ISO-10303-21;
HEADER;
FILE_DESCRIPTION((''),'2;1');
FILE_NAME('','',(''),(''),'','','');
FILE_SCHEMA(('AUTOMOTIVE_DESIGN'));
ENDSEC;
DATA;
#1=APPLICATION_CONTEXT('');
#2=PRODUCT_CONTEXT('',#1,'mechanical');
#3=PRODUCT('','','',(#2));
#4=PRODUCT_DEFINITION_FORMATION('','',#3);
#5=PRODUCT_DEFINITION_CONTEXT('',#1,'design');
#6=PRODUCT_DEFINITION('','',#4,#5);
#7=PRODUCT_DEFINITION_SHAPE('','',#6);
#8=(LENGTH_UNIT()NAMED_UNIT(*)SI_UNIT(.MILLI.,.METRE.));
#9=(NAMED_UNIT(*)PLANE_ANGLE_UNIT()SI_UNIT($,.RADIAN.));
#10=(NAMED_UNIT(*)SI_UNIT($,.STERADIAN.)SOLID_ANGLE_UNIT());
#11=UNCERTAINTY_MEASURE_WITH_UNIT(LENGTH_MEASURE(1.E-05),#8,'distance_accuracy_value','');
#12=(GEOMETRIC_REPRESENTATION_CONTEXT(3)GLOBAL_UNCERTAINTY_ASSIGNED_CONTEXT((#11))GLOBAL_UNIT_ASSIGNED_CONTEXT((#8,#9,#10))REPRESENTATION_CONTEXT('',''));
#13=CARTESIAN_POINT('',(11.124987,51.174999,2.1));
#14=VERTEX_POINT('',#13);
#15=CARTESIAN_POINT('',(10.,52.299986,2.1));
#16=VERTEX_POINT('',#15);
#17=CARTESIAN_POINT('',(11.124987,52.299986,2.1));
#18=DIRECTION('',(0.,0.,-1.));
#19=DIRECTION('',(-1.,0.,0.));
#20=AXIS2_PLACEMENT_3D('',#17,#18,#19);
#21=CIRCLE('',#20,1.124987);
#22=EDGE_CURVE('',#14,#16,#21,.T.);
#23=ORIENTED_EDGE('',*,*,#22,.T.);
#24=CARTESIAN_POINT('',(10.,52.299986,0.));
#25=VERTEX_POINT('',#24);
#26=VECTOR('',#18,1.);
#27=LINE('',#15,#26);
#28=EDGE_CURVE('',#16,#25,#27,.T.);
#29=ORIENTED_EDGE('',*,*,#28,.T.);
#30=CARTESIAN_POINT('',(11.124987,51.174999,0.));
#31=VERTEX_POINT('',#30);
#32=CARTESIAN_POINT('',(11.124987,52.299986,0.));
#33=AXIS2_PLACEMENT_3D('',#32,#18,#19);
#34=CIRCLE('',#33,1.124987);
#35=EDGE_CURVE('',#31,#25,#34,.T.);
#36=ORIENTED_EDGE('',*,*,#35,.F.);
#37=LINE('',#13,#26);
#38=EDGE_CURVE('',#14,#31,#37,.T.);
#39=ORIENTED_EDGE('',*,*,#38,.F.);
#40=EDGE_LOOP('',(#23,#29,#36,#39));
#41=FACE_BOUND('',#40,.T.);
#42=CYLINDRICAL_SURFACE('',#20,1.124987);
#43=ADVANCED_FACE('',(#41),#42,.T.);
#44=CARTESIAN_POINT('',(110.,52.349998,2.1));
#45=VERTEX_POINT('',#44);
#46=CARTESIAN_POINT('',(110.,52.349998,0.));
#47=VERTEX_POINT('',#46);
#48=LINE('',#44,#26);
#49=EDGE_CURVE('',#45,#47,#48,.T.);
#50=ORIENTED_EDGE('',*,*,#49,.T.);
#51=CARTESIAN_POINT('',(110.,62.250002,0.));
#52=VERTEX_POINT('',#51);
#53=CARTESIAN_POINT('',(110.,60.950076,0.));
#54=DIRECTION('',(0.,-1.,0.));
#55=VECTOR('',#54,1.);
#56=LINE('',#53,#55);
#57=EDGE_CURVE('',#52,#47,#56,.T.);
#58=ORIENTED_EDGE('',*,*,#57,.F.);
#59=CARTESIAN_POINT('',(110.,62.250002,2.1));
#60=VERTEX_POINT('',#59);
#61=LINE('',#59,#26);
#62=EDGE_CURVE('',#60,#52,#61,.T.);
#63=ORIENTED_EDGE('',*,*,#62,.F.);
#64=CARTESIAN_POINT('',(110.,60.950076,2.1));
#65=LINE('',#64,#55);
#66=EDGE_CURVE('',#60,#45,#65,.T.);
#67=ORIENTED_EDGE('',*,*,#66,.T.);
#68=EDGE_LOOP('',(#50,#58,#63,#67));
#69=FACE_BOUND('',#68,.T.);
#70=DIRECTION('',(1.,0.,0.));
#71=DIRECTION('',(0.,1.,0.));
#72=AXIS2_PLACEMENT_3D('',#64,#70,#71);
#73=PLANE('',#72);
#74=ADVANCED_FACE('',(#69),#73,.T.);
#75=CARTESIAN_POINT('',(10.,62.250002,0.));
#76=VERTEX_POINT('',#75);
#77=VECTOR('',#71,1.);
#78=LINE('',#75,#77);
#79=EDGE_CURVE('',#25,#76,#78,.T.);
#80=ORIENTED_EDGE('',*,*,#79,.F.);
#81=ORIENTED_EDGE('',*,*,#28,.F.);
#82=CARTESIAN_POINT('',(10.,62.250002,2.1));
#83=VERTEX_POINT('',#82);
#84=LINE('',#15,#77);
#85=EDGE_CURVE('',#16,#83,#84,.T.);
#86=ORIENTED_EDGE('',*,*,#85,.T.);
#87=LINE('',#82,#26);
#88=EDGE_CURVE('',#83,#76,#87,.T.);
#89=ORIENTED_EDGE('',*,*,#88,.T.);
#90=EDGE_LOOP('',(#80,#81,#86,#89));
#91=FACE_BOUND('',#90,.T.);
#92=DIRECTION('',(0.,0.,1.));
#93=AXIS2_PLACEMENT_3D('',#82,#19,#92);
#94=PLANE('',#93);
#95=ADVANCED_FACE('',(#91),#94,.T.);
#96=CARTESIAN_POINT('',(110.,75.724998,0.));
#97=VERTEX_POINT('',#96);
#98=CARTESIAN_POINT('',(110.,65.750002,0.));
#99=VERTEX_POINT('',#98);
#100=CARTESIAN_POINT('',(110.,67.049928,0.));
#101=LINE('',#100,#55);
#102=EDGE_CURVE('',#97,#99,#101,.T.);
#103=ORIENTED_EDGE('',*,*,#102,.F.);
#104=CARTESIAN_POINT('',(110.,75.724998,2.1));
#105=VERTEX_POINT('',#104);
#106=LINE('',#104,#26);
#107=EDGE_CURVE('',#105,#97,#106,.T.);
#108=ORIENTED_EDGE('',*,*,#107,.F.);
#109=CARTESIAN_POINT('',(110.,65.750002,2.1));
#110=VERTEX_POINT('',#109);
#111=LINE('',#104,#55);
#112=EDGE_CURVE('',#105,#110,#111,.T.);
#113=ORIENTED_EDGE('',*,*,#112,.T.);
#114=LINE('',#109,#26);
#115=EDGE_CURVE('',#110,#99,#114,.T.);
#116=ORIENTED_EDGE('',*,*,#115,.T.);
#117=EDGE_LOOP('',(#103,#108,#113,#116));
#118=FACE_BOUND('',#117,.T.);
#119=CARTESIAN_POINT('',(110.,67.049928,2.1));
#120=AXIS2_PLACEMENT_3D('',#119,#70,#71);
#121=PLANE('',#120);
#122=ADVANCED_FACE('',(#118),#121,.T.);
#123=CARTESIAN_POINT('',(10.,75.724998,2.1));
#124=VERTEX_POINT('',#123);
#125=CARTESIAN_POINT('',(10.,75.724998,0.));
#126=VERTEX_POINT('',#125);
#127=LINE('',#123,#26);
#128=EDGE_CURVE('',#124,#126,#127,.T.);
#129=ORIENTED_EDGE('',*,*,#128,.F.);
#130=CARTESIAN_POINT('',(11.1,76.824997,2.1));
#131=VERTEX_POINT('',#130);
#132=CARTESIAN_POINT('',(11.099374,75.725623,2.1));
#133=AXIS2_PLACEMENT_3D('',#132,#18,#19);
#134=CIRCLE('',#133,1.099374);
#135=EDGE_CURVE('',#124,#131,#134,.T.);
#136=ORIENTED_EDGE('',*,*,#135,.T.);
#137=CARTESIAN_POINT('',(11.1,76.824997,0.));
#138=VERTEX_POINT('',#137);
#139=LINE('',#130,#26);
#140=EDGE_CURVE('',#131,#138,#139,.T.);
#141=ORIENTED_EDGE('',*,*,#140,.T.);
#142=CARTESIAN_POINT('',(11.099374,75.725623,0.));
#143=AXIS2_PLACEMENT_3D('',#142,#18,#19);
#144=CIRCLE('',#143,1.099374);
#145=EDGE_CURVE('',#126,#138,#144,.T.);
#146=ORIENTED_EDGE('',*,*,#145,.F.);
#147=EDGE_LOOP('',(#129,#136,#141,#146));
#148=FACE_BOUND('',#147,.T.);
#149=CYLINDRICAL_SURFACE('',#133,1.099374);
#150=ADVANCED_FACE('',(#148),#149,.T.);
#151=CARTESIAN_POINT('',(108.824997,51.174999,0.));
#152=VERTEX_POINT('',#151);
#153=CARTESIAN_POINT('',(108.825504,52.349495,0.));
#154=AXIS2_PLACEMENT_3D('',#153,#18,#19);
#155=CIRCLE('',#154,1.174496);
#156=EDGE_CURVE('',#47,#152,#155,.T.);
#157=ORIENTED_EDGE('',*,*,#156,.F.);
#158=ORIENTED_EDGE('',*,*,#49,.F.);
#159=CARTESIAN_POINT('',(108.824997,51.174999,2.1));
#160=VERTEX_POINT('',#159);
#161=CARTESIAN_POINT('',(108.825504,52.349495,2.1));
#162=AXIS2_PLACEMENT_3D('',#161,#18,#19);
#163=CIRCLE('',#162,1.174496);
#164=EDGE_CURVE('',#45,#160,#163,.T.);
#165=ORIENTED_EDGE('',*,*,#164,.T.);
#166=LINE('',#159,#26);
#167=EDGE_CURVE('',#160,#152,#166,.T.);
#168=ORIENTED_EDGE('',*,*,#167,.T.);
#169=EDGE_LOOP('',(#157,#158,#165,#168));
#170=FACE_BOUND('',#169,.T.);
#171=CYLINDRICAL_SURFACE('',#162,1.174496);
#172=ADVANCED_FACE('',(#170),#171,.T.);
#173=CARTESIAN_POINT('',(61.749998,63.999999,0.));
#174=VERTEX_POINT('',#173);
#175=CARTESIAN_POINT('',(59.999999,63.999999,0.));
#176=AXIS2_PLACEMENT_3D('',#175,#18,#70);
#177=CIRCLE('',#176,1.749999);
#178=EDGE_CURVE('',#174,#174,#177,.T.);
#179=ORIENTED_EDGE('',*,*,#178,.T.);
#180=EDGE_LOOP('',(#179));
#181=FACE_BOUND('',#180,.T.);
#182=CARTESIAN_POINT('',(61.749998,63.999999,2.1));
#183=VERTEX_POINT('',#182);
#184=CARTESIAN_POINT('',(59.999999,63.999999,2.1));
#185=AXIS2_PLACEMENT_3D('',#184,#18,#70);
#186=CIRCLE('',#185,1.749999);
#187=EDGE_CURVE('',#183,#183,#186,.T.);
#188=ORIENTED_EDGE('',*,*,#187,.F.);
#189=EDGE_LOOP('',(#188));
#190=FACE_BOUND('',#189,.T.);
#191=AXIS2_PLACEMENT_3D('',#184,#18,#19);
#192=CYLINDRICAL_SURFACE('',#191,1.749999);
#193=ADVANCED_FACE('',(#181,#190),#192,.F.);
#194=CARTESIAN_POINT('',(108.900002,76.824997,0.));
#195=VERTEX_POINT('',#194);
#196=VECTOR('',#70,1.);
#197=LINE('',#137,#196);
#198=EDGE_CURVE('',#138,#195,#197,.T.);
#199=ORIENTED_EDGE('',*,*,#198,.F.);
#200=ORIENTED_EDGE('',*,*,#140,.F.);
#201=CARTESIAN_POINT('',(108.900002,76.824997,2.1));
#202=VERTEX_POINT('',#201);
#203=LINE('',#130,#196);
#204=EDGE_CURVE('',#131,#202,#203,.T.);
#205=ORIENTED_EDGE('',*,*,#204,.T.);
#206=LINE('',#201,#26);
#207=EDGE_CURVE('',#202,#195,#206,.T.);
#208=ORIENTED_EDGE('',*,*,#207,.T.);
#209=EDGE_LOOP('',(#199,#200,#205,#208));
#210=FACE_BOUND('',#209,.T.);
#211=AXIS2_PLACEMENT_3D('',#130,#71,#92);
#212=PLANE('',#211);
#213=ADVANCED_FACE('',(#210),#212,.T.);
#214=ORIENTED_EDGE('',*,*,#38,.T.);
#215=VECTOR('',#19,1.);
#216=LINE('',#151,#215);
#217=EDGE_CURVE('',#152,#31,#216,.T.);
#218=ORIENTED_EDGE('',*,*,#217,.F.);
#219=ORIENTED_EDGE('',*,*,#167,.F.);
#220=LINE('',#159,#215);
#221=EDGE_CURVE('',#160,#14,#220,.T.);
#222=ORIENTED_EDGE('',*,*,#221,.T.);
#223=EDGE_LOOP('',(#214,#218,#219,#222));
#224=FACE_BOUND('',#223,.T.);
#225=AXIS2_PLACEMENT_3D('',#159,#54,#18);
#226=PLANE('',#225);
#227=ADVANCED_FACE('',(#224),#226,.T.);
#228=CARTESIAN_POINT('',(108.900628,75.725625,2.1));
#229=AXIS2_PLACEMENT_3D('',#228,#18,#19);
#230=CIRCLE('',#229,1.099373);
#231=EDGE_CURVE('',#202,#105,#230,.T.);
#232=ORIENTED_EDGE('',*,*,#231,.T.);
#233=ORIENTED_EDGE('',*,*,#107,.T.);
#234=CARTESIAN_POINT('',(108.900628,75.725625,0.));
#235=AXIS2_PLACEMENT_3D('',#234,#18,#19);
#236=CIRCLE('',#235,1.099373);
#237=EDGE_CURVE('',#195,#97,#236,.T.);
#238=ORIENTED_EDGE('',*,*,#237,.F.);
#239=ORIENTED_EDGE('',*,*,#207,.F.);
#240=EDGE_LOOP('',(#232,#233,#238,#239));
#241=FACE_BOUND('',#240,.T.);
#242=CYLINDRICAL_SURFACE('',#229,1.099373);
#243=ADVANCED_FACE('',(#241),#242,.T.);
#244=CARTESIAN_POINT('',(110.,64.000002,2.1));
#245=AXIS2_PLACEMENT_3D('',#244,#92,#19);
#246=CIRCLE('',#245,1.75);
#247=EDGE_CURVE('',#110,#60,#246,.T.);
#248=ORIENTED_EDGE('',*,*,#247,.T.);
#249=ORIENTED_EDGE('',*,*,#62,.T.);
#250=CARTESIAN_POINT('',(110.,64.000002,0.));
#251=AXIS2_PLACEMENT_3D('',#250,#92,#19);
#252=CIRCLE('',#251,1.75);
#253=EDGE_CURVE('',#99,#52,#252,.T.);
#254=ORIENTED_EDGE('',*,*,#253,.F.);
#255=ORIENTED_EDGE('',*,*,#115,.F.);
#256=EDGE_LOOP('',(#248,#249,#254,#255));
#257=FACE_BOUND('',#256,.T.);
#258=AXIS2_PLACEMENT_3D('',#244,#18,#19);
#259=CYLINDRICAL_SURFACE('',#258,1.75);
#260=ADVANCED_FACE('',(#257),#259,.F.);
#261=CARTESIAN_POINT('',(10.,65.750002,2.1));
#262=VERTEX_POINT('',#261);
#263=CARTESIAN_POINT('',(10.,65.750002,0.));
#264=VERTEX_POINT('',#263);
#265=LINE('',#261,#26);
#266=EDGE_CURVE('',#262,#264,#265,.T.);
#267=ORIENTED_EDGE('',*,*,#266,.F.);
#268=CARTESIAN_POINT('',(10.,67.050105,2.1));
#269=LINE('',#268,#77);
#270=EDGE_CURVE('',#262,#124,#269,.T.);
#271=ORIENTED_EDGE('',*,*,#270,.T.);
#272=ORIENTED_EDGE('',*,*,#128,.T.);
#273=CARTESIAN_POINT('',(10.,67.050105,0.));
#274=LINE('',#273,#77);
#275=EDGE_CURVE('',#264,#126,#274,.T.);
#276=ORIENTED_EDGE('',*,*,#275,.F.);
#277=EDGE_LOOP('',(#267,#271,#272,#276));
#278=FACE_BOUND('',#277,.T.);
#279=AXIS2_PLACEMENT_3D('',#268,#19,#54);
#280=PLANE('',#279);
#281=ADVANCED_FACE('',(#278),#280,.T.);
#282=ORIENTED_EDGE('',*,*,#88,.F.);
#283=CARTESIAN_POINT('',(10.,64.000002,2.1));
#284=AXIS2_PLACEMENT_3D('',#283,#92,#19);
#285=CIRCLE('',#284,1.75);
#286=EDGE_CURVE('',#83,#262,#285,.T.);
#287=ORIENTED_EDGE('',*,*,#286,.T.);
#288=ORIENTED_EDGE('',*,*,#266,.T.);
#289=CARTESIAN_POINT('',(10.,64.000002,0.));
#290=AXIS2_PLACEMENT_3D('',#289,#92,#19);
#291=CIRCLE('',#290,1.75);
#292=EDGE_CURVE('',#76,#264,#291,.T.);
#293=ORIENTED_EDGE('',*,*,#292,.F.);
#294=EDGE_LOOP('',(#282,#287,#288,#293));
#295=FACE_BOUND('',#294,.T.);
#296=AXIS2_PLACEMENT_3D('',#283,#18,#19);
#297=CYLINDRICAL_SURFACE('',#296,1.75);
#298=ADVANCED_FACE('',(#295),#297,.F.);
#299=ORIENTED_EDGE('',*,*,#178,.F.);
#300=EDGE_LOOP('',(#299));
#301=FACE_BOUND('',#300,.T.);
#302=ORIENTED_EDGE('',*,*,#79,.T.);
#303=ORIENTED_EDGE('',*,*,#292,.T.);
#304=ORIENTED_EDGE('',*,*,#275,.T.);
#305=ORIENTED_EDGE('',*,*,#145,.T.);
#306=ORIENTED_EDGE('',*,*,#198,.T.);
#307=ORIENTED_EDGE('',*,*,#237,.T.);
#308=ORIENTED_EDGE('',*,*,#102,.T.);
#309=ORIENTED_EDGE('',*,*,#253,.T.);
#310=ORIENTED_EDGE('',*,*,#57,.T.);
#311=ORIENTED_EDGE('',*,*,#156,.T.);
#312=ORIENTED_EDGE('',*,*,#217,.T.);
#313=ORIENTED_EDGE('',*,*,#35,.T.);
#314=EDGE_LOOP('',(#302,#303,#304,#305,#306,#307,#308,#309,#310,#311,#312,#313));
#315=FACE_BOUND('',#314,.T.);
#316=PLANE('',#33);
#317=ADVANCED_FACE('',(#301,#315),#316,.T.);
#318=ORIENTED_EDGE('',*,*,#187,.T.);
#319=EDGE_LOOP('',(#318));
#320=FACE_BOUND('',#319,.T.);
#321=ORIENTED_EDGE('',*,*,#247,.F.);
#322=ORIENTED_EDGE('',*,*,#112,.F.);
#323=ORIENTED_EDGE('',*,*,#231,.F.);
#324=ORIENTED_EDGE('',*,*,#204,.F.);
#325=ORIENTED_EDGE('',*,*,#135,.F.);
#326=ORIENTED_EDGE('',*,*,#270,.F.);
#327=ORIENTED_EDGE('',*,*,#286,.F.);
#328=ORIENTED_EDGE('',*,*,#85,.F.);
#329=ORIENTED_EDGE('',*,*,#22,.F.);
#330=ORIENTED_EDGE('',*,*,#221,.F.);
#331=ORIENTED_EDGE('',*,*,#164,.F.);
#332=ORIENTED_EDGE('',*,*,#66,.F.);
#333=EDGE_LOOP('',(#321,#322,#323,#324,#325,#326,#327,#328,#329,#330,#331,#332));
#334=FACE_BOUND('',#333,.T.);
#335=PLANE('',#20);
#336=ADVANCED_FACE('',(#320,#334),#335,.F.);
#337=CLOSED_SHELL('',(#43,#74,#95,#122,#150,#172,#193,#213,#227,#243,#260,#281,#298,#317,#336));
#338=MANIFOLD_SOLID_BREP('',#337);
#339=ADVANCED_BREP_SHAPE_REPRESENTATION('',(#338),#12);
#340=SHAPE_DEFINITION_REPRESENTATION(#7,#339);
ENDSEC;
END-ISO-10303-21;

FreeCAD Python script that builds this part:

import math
import FreeCAD as App
import Part
import Sketcher

doc = App.newDocument("Part")
body = doc.addObject("PartDesign::Body", "Body")

sketch1 = body.newObject("Sketcher::SketchObject", "Sketch")
sketch1.AttachmentSupport = (doc.getObject("XY_Plane"), [""])
sketch1.MapMode = "FlatFace"
sketch1.addGeometry(Part.LineSegment(App.Vector(10, 52.3, 0), App.Vector(10, 62.3, 0)), False)
sketch1.addGeometry(Part.ArcOfCircle(Part.Circle(App.Vector(10, 64, 0), App.Vector(0, 0, 1), 1.8), math.radians(-90), math.radians(90)), False)
sketch1.addGeometry(Part.LineSegment(App.Vector(10, 65.8, 0), App.Vector(10, 75.7, 0)), False)
sketch1.addGeometry(Part.ArcOfCircle(Part.Circle(App.Vector(11.1, 75.7, 0), App.Vector(0, 0, 1), 1.1), math.radians(90), math.radians(180)), False)
sketch1.addGeometry(Part.LineSegment(App.Vector(11.1, 76.8, 0), App.Vector(108.9, 76.8, 0)), False)
sketch1.addGeometry(Part.ArcOfCircle(Part.Circle(App.Vector(108.9, 75.7, 0), App.Vector(0, 0, 1), 1.1), math.radians(0), math.radians(90)), False)
sketch1.addGeometry(Part.LineSegment(App.Vector(110, 75.7, 0), App.Vector(110, 65.8, 0)), False)
sketch1.addGeometry(Part.ArcOfCircle(Part.Circle(App.Vector(110, 64, 0), App.Vector(0, 0, 1), 1.8), math.radians(90), math.radians(270)), False)
sketch1.addGeometry(Part.LineSegment(App.Vector(110, 62.3, 0), App.Vector(110, 52.3, 0)), False)
sketch1.addGeometry(Part.ArcOfCircle(Part.Circle(App.Vector(108.8, 52.3, 0), App.Vector(0, 0, 1), 1.2), math.radians(-90), math.radians(0)), False)
sketch1.addGeometry(Part.LineSegment(App.Vector(108.8, 51.2, 0), App.Vector(11.1, 51.2, 0)), False)
sketch1.addGeometry(Part.ArcOfCircle(Part.Circle(App.Vector(11.1, 52.3, 0), App.Vector(0, 0, 1), 1.1), math.radians(180), math.radians(270)), False)
sketch1.addGeometry(Part.Circle(App.Vector(60, 64, 0), App.Vector(0, 0, 1), 1.7), False)
sketch1.addConstraint(Sketcher.Constraint("Coincident", 0, 2, 1, 1))
sketch1.addConstraint(Sketcher.Constraint("Coincident", 1, 2, 2, 1))
sketch1.addConstraint(Sketcher.Constraint("Coincident", 2, 2, 3, 2))
sketch1.addConstraint(Sketcher.Constraint("Coincident", 3, 1, 4, 1))
sketch1.addConstraint(Sketcher.Constraint("Coincident", 4, 2, 5, 2))
sketch1.addConstraint(Sketcher.Constraint("Coincident", 5, 1, 6, 1))
sketch1.addConstraint(Sketcher.Constraint("Coincident", 6, 2, 7, 1))
sketch1.addConstraint(Sketcher.Constraint("Coincident", 7, 2, 8, 1))
sketch1.addConstraint(Sketcher.Constraint("Coincident", 8, 2, 9, 2))
sketch1.addConstraint(Sketcher.Constraint("Coincident", 9, 1, 10, 1))
sketch1.addConstraint(Sketcher.Constraint("Tangent", 10, 2, 11, 2))
sketch1.addConstraint(Sketcher.Constraint("Tangent", 11, 1, 0, 1))
sketch1.addConstraint(Sketcher.Constraint("Vertical", 0))
sketch1.addConstraint(Sketcher.Constraint("Vertical", 2))
sketch1.addConstraint(Sketcher.Constraint("Horizontal", 4))
sketch1.addConstraint(Sketcher.Constraint("Vertical", 6))
sketch1.addConstraint(Sketcher.Constraint("Vertical", 8))
sketch1.addConstraint(Sketcher.Constraint("Horizontal", 10))
sketch1.addConstraint(Sketcher.Constraint("Equal", 3, 5))
sketch1.addConstraint(Sketcher.Constraint("Equal", 1, 7))
sketch1.addConstraint(Sketcher.Constraint("Equal", 7, 12))
sketch1.addConstraint(Sketcher.Constraint("Horizontal", 1, 3, 7, 3))
sketch1.addConstraint(Sketcher.Constraint("Horizontal", 2, 2, 5, 1))
sketch1.addConstraint(Sketcher.Constraint("Vertical", 1, 3, 0, 2))
sketch1.addConstraint(Sketcher.Constraint("Vertical", 0, 2, 1, 2))
sketch1.addConstraint(Sketcher.Constraint("Vertical", 7, 3, 5, 1))
sketch1.addConstraint(Sketcher.Constraint("Vertical", 6, 2, 7, 2))
sketch1.addConstraint(Sketcher.Constraint("Diameter", 12, 3.499998))
sketch1.addConstraint(Sketcher.Constraint("DistanceX", 4, 1, 4, 2, 97.800001))
sketch1.addConstraint(Sketcher.Constraint("DistanceX", -1, 1, 1, 3, 10.0))
sketch1.addConstraint(Sketcher.Constraint("DistanceY", -1, 1, 1, 3, 64.000002))
sketch1.addConstraint(Sketcher.Constraint("DistanceX", -1, 1, 7, 3, 110.0))
sketch1.addConstraint(Sketcher.Constraint("DistanceX", -1, 1, 12, 3, 59.999999))
sketch1.addConstraint(Sketcher.Constraint("DistanceY", -1, 1, 12, 3, 63.999999))
sketch1.addConstraint(Sketcher.Constraint("DistanceX", -1, 1, 3, 1, 11.1))
sketch1.addConstraint(Sketcher.Constraint("DistanceY", 2, 2, 3, 1, 1.099998))
sketch1.addConstraint(Sketcher.Constraint("DistanceY", -1, 1, 8, 2, 52.349998))
sketch1.addConstraint(Sketcher.Constraint("DistanceY", -1, 1, 2, 2, 75.724998))
sketch1.addConstraint(Sketcher.Constraint("DistanceY", -1, 1, 9, 1, 51.174999))
sketch1.addConstraint(Sketcher.Constraint("Radius", 3, 1.099374))
sketch1.addConstraint(Sketcher.Constraint("Radius", 9, 1.174496))
sketch1.addConstraint(Sketcher.Constraint("Radius", 11, 1.124987))
sketch1.addConstraint(Sketcher.Constraint("DistanceX", 10, 2, 10, 1, 97.70001))
pad1 = body.newObject("PartDesign::Pad", "Pad")
pad1.Profile = sketch1
pad1.Length = 2.1

doc.recompute()
